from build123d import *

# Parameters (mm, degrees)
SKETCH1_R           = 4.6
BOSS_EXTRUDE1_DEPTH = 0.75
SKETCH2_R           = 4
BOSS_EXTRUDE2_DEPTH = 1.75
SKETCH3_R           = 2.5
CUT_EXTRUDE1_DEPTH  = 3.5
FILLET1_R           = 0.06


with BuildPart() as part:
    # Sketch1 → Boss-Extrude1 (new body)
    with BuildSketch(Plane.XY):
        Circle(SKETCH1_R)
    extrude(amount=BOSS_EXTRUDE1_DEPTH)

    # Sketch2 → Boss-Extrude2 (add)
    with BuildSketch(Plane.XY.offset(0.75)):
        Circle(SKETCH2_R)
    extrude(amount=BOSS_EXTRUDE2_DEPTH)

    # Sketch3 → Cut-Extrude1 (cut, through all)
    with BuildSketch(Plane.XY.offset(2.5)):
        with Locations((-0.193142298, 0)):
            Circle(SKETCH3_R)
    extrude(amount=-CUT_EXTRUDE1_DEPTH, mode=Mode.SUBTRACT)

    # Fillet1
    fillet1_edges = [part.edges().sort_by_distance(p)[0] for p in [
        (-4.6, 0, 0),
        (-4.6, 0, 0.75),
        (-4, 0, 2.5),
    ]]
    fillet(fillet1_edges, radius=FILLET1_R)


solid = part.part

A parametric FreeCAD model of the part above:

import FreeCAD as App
import Part
import Sketcher
from FreeCAD import Vector


def edges_at(feature, points):
    """Names of the edges that pass closest to the given points."""
    edges = feature.Shape.Edges
    near = lambda p: min(range(len(edges)), key=lambda i: edges[i].distToShape(Part.Vertex(*p))[0])
    return sorted({f"Edge{near(p) + 1}" for p in points})

doc = App.newDocument("Part")
body = doc.addObject("PartDesign::Body", "Body")

# Sketch on XY plane
sketch1 = body.newObject("Sketcher::SketchObject", "Sketch")
sketch1.AttachmentSupport = (doc.getObject("XY_Plane"), [""])
sketch1.MapMode = "FlatFace"
sketch1.addGeometry(Part.Circle(Vector(0, 0, 0), Vector(0, 0, 1), 4.6), False)
sketch1.addConstraint([
    Sketcher.Constraint("Coincident", 0, 3, -1, 1),
    Sketcher.Constraint("Diameter", 0, 9.2),
])
pad1 = body.newObject("PartDesign::Pad", "Pad")
pad1.Profile = sketch1
pad1.Length = 0.75

# Sketch on XY plane
sketch2 = body.newObject("Sketcher::SketchObject", "Sketch001")
sketch2.AttachmentSupport = (doc.getObject("XY_Plane"), [""])
sketch2.MapMode = "FlatFace"
sketch2.AttachmentOffset = App.Placement(Vector(0, 0, 0.75), App.Rotation())
sketch2.addGeometry(Part.Circle(Vector(0, 0, 0), Vector(0, 0, 1), 4), False)
sketch2.addConstraint([
    Sketcher.Constraint("Coincident", 0, 3, -1, 1),
    Sketcher.Constraint("Diameter", 0, 8.0),
])
pad2 = body.newObject("PartDesign::Pad", "Pad001")
pad2.Profile = sketch2
pad2.Length = 1.75

# Sketch on XY plane
sketch3 = body.newObject("Sketcher::SketchObject", "Sketch002")
sketch3.AttachmentSupport = (doc.getObject("XY_Plane"), [""])
sketch3.MapMode = "FlatFace"
sketch3.AttachmentOffset = App.Placement(Vector(0, 0, 2.5), App.Rotation())
sketch3.addGeometry(Part.Circle(Vector(-0.193142, 0, 0), Vector(0, 0, 1), 2.5), False)
sketch3.addConstraint([
    Sketcher.Constraint("PointOnObject", 0, 3, -1),
    Sketcher.Constraint("Diameter", 0, 5.0),
    Sketcher.Constraint("DistanceX", 0, 3, -1, 1, 0.193142),
])
pocket1 = body.newObject("PartDesign::Pocket", "Pocket")
pocket1.Profile = sketch3
pocket1.Type = "ThroughAll"
doc.recompute()

fillet = body.newObject("PartDesign::Fillet", "Fillet")
fillet.Base = (pocket1, edges_at(pocket1, [(-4.6, 0, 0), (-4.6, 0, 0.75), (-4, 0, 2.5)]))
fillet.Radius = 0.06

doc.recompute()
